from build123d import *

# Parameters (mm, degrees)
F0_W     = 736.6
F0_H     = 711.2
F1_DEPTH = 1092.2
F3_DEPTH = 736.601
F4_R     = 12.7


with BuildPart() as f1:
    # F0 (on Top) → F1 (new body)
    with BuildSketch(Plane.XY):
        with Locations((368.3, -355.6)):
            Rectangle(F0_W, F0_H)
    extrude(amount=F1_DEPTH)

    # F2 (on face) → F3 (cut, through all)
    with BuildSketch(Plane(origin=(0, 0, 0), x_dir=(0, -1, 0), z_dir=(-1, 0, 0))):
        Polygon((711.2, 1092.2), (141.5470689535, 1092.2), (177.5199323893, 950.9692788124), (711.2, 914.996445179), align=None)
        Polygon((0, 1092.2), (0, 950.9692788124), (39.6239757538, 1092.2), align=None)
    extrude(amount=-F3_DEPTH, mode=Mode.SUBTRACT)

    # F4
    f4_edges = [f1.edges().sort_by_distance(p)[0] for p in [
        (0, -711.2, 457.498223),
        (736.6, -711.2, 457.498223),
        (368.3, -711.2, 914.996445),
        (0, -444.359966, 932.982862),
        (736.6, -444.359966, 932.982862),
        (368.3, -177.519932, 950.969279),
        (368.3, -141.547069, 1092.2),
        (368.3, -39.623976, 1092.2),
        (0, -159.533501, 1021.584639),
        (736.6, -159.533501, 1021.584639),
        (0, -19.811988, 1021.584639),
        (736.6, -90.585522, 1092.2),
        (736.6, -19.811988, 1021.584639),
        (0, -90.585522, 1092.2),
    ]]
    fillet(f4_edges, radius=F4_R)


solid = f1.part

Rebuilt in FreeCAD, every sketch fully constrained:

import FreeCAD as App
import Part
import Sketcher
from FreeCAD import Vector
Q = App.Units.Quantity


def edges_at(feature, points):
    """Names of the edges that pass closest to the given points."""
    edges = feature.Shape.Edges
    near = lambda p: min(range(len(edges)), key=lambda i: edges[i].distToShape(Part.Vertex(*p))[0])
    return sorted({f"Edge{near(p) + 1}" for p in points})


def add_polygon(sketch, points):
    """Adds a closed chain of lines whose ends are joined by coincident constraints."""
    first, n = sketch.GeometryCount, len(points)
    for a, b in zip(points, points[1:] + points[:1]):
        sketch.addGeometry(Part.LineSegment(App.Vector(*a, 0), App.Vector(*b, 0)), False)
    for i in range(n):
        sketch.addConstraint(Sketcher.Constraint("Coincident", first + i, 2, first + (i + 1) % n, 1))

doc = App.newDocument("Part")
params = doc.addObject("Spreadsheet::Sheet", "Params")
for row, (alias, value) in enumerate([
    ("sketch1_width", "29 in"),
    ("sketch1_height", "28 in"),
    ("pad1_length", "43 in"),
    ("fillet_radius", "0.5 in"),
], start=1):
    params.set(f"A{row}", alias)
    params.set(f"B{row}", "=" + value)
    params.setAlias(f"B{row}", alias)

body = doc.addObject("PartDesign::Body", "Body")

# Sketch on XY plane
sketch1 = doc.addObject("Sketcher::SketchObject", "Sketch")
body.addObject(sketch1)
sketch1.AttachmentSupport = (doc.XY_Plane, [""])
sketch1.MapMode = "FlatFace"
add_polygon(sketch1, [(0, 0), (0, -711), (737, -711), (737, 0)])  # lines 0-3
sketch1.addConstraint([
    Sketcher.Constraint("Vertical", 0),
    Sketcher.Constraint("Horizontal", 1),
    Sketcher.Constraint("Vertical", 2),
    Sketcher.Constraint("Horizontal", 3),
    Sketcher.Constraint("Coincident", 3, 2, -1, 1),
    Sketcher.Constraint("DistanceX", 1, 1, 1, 2, Q("29 in")),
    Sketcher.Constraint("DistanceY", 0, 2, 0, 1, Q("28 in")),
])
sketch1.setExpression("Constraints[9]", "Params.sketch1_width")
sketch1.setExpression("Constraints[10]", "Params.sketch1_height")
pad1 = doc.addObject("PartDesign::Pad", "Pad")
body.addObject(pad1)
pad1.Profile = sketch1
pad1.setExpression("Length", "Params.pad1_length")

# Sketch on YZ plane
sketch2 = doc.addObject("Sketcher::SketchObject", "Sketch001")
body.addObject(sketch2)
sketch2.AttachmentSupport = (doc.YZ_Plane, [""])
sketch2.MapMode = "FlatFace"
add_polygon(sketch2, [(-711, 1092), (-142, 1092), (-178, 951), (-711, 915)])  # lines 0-3
add_polygon(sketch2, [(0, 1092), (0, 951), (-40, 1092)])  # lines 4-6
sketch2.addConstraint([
    Sketcher.Constraint("Horizontal", 0),
    Sketcher.Constraint("Vertical", 3),
    Sketcher.Constraint("Vertical", 4),
    Sketcher.Constraint("Horizontal", 6),
    Sketcher.Constraint("PointOnObject", 4, 2, -2),
    Sketcher.Constraint("Horizontal", 1, 2, 4, 2),
    Sketcher.Constraint("Horizontal", 3, 2, 5, 2),
    Sketcher.Constraint("DistanceY", -1, 1, 0, 2, Q("43 in")),
    Sketcher.Constraint("DistanceX", 2, 2, -1, 1, Q("28 in")),
    Sketcher.Constraint("DistanceX", 0, 1, 0, 2, Q("569.652931 mm")),
    Sketcher.Constraint("DistanceY", 4, 2, 4, 1, Q("141.230721 mm")),
    Sketcher.Constraint("DistanceX", 6, 1, 6, 2, Q("39.623976 mm")),
    Sketcher.Constraint("DistanceY", 3, 1, 3, 2, Q("177.203555 mm")),
    Sketcher.Constraint("Distance", 1, Q("145.740055 mm")),
])
pocket1 = doc.addObject("PartDesign::Pocket", "Pocket")
body.addObject(pocket1)
pocket1.Profile = sketch2
pocket1.Type = "ThroughAll"
pocket1.Reversed = True
doc.recompute()

fillet = doc.addObject("PartDesign::Fillet", "Fillet")
body.addObject(fillet)
fillet.Base = (pocket1, edges_at(pocket1, [
    (0, -711.2, 457.498),
    (736.6, -711.2, 457.498),
    (368.3, -711.2, 914.996),
    (0, -444.36, 932.983),
    (736.6, -444.36, 932.983),
    (368.3, -177.52, 950.969),
    (368.3, -141.547, 1092.2),
    (368.3, -39.624, 1092.2),
    (0, -159.534, 1021.585),
    (736.6, -159.534, 1021.585),
    (0, -19.812, 1021.585),
    (736.6, -90.586, 1092.2),
    (736.6, -19.812, 1021.585),
    (0, -90.586, 1092.2),
]))
fillet.setExpression("Radius", "Params.fillet_radius")

doc.recompute()
